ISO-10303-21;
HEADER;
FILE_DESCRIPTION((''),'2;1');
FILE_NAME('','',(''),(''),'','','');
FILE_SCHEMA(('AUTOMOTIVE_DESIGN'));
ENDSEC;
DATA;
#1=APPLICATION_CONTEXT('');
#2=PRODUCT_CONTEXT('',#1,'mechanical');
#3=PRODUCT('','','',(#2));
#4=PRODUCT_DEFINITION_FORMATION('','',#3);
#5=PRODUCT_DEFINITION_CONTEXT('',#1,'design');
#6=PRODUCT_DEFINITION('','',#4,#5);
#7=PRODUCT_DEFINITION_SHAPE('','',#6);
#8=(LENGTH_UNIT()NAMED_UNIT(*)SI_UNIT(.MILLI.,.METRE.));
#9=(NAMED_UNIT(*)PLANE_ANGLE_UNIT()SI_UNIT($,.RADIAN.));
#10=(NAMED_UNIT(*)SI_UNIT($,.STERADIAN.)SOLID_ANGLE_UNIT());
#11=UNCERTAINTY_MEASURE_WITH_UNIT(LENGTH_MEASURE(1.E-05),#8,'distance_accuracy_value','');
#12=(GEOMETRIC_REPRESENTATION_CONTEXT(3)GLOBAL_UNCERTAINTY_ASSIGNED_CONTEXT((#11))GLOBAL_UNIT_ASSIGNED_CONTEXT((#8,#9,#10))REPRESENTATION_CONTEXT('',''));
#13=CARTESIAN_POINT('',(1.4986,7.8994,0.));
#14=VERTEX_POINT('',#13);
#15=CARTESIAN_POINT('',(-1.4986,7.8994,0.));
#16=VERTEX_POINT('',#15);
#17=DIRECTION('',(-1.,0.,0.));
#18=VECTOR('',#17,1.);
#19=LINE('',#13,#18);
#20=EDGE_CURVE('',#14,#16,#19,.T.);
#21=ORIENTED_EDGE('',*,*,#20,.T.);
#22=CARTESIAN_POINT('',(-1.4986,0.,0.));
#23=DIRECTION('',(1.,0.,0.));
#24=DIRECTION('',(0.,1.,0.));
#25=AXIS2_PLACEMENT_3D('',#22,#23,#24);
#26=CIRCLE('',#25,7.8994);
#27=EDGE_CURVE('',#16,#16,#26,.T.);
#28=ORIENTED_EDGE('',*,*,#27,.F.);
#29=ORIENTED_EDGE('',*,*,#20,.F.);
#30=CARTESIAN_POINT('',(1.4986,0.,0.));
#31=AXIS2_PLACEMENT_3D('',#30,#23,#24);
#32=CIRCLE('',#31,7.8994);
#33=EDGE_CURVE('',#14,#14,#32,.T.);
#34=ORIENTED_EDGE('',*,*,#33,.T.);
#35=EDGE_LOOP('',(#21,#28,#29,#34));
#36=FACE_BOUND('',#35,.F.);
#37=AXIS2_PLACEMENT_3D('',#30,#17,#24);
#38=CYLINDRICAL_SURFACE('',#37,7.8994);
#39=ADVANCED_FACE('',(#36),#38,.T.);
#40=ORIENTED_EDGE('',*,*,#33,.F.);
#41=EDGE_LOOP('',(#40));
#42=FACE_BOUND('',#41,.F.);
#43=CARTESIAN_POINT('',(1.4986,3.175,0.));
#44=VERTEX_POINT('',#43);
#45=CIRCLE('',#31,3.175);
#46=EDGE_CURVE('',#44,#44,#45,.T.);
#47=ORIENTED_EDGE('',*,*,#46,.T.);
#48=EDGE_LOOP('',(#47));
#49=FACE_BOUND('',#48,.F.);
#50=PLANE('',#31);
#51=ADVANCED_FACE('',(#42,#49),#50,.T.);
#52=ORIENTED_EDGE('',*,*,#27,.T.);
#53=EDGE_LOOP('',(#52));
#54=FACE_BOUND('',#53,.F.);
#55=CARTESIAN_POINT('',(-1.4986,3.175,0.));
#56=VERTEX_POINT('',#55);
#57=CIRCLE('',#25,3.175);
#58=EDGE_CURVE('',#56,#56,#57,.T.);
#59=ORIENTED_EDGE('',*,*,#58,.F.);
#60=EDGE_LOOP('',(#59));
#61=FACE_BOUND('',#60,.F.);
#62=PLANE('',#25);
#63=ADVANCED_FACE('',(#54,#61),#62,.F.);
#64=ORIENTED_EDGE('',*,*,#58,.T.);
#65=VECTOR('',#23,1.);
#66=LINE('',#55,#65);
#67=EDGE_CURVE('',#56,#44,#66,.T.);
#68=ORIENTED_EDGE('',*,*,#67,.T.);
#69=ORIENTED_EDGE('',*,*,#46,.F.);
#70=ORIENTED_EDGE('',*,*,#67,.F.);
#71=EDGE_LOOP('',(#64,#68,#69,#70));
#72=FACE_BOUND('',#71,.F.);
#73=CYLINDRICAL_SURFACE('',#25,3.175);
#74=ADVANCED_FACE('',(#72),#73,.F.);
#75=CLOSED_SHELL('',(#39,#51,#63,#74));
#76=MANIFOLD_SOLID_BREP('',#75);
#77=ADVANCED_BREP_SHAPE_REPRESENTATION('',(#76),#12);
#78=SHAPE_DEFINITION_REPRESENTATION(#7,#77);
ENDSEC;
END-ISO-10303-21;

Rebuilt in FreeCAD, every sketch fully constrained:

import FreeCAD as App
import Part
import Sketcher
Q = App.Units.Quantity


def add_polygon(sketch, points):
    """Adds a closed chain of lines whose ends are joined by coincident constraints."""
    first, n = sketch.GeometryCount, len(points)
    for a, b in zip(points, points[1:] + points[:1]):
        sketch.addGeometry(Part.LineSegment(App.Vector(*a, 0), App.Vector(*b, 0)), False)
    for i in range(n):
        sketch.addConstraint(Sketcher.Constraint("Coincident", first + i, 2, first + (i + 1) % n, 1))

doc = App.newDocument("Part")
body = doc.addObject("PartDesign::Body", "Body")

sketch1 = body.newObject("Sketcher::SketchObject", "Sketch")
sketch1.AttachmentSupport = (doc.getObject("XY_Plane"), [""])
sketch1.MapMode = "FlatFace"
add_polygon(sketch1, [(-1.4986, 7.8994), (-1.4986, 3.175), (1.4986, 3.175), (1.4986, 7.8994)])
sketch1.addConstraint(Sketcher.Constraint("Vertical", 0))
sketch1.addConstraint(Sketcher.Constraint("Horizontal", 1))
sketch1.addConstraint(Sketcher.Constraint("Vertical", 2))
sketch1.addConstraint(Sketcher.Constraint("Horizontal", 3))
sketch1.addConstraint(Sketcher.Constraint("DistanceX", 1, 1, 1, 2, Q("0.118 in")))
sketch1.addConstraint(Sketcher.Constraint("DistanceY", 0, 2, 0, 1, Q("0.186 in")))
sketch1.addConstraint(Sketcher.Constraint("DistanceX", 0, 2, -1, 1, Q("0.059 in")))
sketch1.addConstraint(Sketcher.Constraint("DistanceY", -1, 1, 0, 2, Q("0.125 in")))
revolution = body.newObject("PartDesign::Revolution", "Revolution")
revolution.Profile = sketch1
revolution.ReferenceAxis = (sketch1, ["H_Axis"])
revolution.Angle = 360

doc.recompute()
